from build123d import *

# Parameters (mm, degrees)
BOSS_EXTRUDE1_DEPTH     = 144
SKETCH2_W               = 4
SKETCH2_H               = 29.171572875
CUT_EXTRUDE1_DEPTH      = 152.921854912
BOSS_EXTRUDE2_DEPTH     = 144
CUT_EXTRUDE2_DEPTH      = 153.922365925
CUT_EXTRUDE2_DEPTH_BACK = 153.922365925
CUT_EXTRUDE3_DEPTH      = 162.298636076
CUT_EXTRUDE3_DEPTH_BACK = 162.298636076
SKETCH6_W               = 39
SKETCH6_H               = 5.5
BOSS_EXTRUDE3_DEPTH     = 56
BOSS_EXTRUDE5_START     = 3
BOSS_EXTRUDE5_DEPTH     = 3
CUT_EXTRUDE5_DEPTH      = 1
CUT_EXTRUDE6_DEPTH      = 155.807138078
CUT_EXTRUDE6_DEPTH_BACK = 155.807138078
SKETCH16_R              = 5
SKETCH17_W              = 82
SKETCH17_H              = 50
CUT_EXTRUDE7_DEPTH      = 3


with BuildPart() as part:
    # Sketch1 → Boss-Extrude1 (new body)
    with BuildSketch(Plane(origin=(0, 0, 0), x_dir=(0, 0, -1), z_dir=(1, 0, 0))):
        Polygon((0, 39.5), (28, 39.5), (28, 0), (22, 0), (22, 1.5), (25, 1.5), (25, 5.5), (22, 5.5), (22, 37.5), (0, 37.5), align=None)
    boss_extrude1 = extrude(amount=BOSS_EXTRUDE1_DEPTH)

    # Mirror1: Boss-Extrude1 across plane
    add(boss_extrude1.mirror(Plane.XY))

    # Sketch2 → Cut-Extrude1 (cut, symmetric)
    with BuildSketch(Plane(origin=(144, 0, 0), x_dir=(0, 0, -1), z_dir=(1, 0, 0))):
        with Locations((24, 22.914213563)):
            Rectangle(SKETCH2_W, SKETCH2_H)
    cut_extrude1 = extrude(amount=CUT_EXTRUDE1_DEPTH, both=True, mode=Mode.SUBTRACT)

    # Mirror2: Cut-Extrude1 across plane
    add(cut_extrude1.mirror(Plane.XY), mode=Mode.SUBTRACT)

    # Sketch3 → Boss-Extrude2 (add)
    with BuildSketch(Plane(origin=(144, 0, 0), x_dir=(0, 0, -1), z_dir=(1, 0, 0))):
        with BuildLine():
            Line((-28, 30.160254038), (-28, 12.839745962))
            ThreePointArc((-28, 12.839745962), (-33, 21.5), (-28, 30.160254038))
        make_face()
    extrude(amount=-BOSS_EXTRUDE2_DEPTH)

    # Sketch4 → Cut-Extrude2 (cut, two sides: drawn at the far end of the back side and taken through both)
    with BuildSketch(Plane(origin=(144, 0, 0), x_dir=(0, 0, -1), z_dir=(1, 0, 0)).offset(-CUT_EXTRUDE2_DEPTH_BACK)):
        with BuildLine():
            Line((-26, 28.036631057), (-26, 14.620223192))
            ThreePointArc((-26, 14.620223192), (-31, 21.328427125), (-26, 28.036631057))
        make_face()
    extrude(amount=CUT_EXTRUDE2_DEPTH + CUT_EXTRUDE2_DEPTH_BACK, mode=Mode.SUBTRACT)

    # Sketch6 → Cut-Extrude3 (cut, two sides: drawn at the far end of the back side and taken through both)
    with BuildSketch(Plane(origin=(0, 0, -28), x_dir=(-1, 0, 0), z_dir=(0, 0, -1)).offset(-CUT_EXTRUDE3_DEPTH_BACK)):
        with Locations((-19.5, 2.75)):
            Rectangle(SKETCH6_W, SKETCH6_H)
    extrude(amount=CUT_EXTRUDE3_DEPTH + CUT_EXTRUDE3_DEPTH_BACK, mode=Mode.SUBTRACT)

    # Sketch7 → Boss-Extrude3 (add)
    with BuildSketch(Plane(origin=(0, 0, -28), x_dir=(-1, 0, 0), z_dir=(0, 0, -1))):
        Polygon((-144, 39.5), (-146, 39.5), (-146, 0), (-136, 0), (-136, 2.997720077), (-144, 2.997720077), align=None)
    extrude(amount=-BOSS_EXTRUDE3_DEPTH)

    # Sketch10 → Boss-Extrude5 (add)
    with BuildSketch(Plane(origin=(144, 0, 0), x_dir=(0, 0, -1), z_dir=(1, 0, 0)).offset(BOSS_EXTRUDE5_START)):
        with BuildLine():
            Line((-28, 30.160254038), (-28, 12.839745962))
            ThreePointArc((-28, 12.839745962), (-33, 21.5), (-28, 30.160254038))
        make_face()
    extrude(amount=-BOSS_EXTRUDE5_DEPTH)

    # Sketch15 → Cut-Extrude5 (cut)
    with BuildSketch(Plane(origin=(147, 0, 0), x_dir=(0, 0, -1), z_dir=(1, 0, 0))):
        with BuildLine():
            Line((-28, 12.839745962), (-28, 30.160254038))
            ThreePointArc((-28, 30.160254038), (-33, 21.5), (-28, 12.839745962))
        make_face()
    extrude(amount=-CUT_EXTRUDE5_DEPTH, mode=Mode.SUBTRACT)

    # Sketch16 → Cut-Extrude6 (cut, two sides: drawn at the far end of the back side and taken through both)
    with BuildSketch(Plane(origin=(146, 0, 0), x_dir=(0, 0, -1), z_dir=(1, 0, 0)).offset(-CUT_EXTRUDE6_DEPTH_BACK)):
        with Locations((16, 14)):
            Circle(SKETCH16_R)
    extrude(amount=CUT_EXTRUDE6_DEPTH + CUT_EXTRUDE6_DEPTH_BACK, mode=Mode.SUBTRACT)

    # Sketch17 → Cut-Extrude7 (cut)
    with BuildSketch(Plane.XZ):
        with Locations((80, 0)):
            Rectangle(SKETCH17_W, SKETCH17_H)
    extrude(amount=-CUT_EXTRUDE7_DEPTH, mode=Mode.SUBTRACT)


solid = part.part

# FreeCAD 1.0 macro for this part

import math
import FreeCAD as App
import Part
import Sketcher
Q = App.Units.Quantity


def add_polygon(sketch, points):
    """Adds a closed chain of lines whose ends are joined by coincident constraints."""
    first, n = sketch.GeometryCount, len(points)
    for a, b in zip(points, points[1:] + points[:1]):
        sketch.addGeometry(Part.LineSegment(App.Vector(*a, 0), App.Vector(*b, 0)), False)
    for i in range(n):
        sketch.addConstraint(Sketcher.Constraint("Coincident", first + i, 2, first + (i + 1) % n, 1))

doc = App.newDocument("Part")
body = doc.addObject("PartDesign::Body", "Body")

# Sketch on YZ plane
sketch1 = doc.addObject("Sketcher::SketchObject", "Sketch")
body.addObject(sketch1)
sketch1.AttachmentSupport = (doc.YZ_Plane, [""])
sketch1.MapMode = "FlatFace"
add_polygon(sketch1, [(39.5, -28), (39.5, 0), (37.5, 0), (37.5, -22), (5.5, -22), (5.5, -25), (1.5, -25), (1.5, -22), (0, -22), (0, -28)])  # lines 0-9
sketch1.addConstraint(Sketcher.Constraint("Vertical", 0))
sketch1.addConstraint(Sketcher.Constraint("Horizontal", 1))
sketch1.addConstraint(Sketcher.Constraint("Vertical", 2))
sketch1.addConstraint(Sketcher.Constraint("Horizontal", 3))
sketch1.addConstraint(Sketcher.Constraint("Vertical", 4))
sketch1.addConstraint(Sketcher.Constraint("Horizontal", 5))
sketch1.addConstraint(Sketcher.Constraint("Vertical", 6))
sketch1.addConstraint(Sketcher.Constraint("Horizontal", 7))
sketch1.addConstraint(Sketcher.Constraint("Vertical", 8))
sketch1.addConstraint(Sketcher.Constraint("Horizontal", 9))
sketch1.addConstraint(Sketcher.Constraint("PointOnObject", 0, 2, -1))
sketch1.addConstraint(Sketcher.Constraint("PointOnObject", 7, 2, -2))
sketch1.addConstraint(Sketcher.Constraint("Horizontal", 3, 2, 6, 2))
sketch1.addConstraint(Sketcher.Constraint("DistanceX", 1, 2, 1, 1, Q("2 mm")))
sketch1.addConstraint(Sketcher.Constraint("DistanceX", 3, 2, 3, 1, Q("32 mm")))
sketch1.addConstraint(Sketcher.Constraint("DistanceX", 5, 2, 5, 1, Q("4 mm")))
sketch1.addConstraint(Sketcher.Constraint("DistanceY", 0, 1, 0, 2, Q("28 mm")))
sketch1.addConstraint(Sketcher.Constraint("DistanceY", 2, 2, 2, 1, Q("22 mm")))
sketch1.addConstraint(Sketcher.Constraint("DistanceY", 4, 2, 4, 1, Q("3 mm")))
sketch1.addConstraint(Sketcher.Constraint("DistanceX", 7, 2, 7, 1, Q("1.5 mm")))
pad1 = doc.addObject("PartDesign::Pad", "Pad")
body.addObject(pad1)
pad1.Profile = sketch1
pad1.Length = 144
doc.recompute()

mirrored = doc.addObject("PartDesign::Mirrored", "Mirrored")
body.addObject(mirrored)
mirrored.Originals = [pad1]
mirrored.MirrorPlane = (doc.XY_Plane, [""])
body.Tip = mirrored

# Sketch on YZ plane
sketch2 = doc.addObject("Sketcher::SketchObject", "Sketch001")
body.addObject(sketch2)
sketch2.AttachmentSupport = (doc.YZ_Plane, [""])
sketch2.MapMode = "FlatFace"
sketch2.AttachmentOffset = App.Placement(App.Vector(0, 0, 144), App.Rotation())
add_polygon(sketch2, [(37.5, -22), (8.3, -22), (8.3, -26), (37.5, -26)])  # lines 0-3
sketch2.addConstraint(Sketcher.Constraint("Horizontal", 0))
sketch2.addConstraint(Sketcher.Constraint("Vertical", 1))
sketch2.addConstraint(Sketcher.Constraint("Horizontal", 2))
sketch2.addConstraint(Sketcher.Constraint("Vertical", 3))
sketch2.addConstraint(Sketcher.Constraint("DistanceY", 1, 2, 1, 1, Q("4 mm")))
sketch2.addConstraint(Sketcher.Constraint("DistanceY", 0, 2, -1, 1, Q("22 mm")))
sketch2.addConstraint(Sketcher.Constraint("DistanceX", -1, 1, 2, 2, Q("37.5 mm")))
sketch2.addConstraint(Sketcher.Constraint("DistanceX", 0, 2, 0, 1, Q("29.171573 mm")))
pocket1 = doc.addObject("PartDesign::Pocket", "Pocket")
body.addObject(pocket1)
pocket1.Profile = sketch2
pocket1.Length = 305.84371
pocket1.Midplane = True
doc.recompute()

mirrored2 = doc.addObject("PartDesign::Mirrored", "Mirrored001")
body.addObject(mirrored2)
mirrored2.Originals = [pocket1]
mirrored2.MirrorPlane = (doc.XY_Plane, [""])
body.Tip = mirrored2

# Sketch on YZ plane
sketch3 = doc.addObject("Sketcher::SketchObject", "Sketch002")
body.addObject(sketch3)
sketch3.AttachmentSupport = (doc.YZ_Plane, [""])
sketch3.MapMode = "FlatFace"
sketch3.AttachmentOffset = App.Placement(App.Vector(0, 0, 144), App.Rotation())
sketch3.addGeometry(Part.LineSegment(App.Vector(13, 28, 0), App.Vector(30, 28, 0)), False)
sketch3.addGeometry(Part.ArcOfCircle(Part.Circle(App.Vector(22, 23, 0), App.Vector(0, 0, 1), 10), math.radians(30), math.radians(150)), False)
sketch3.addConstraint(Sketcher.Constraint("Coincident", 0, 1, 1, 2))
sketch3.addConstraint(Sketcher.Constraint("Coincident", 1, 1, 0, 2))
sketch3.addConstraint(Sketcher.Constraint("Horizontal", 0))
sketch3.addConstraint(Sketcher.Constraint("Radius", 1, Q("10 mm")))
sketch3.addConstraint(Sketcher.Constraint("DistanceY", -1, 1, 1, 3, Q("23 mm")))
sketch3.addConstraint(Sketcher.Constraint("DistanceY", -1, 1, 0, 1, Q("28 mm")))
sketch3.addConstraint(Sketcher.Constraint("DistanceX", -1, 1, 1, 3, Q("21.5 mm")))
pad2 = doc.addObject("PartDesign::Pad", "Pad001")
body.addObject(pad2)
pad2.Profile = sketch3
pad2.Length = 144
pad2.Reversed = True

# Sketch on YZ plane
sketch4 = doc.addObject("Sketcher::SketchObject", "Sketch003")
body.addObject(sketch4)
sketch4.AttachmentSupport = (doc.YZ_Plane, [""])
sketch4.MapMode = "FlatFace"
sketch4.AttachmentOffset = App.Placement(App.Vector(0, 0, 144), App.Rotation())
sketch4.addGeometry(Part.LineSegment(App.Vector(15, 26, 0), App.Vector(28, 26, 0)), False)
sketch4.addGeometry(Part.ArcOfCircle(Part.Circle(App.Vector(21, 24, 0), App.Vector(0, 0, 1), 7), math.radians(17), math.radians(163)), False)
sketch4.addConstraint(Sketcher.Constraint("Coincident", 0, 1, 1, 2))
sketch4.addConstraint(Sketcher.Constraint("Coincident", 1, 1, 0, 2))
sketch4.addConstraint(Sketcher.Constraint("Horizontal", 0))
sketch4.addConstraint(Sketcher.Constraint("Radius", 1, Q("7 mm")))
sketch4.addConstraint(Sketcher.Constraint("DistanceY", -1, 1, 1, 3, Q("24 mm")))
sketch4.addConstraint(Sketcher.Constraint("DistanceY", -1, 1, 0, 1, Q("26 mm")))
sketch4.addConstraint(Sketcher.Constraint("DistanceX", -1, 1, 1, 1, Q("28.036631 mm")))
pocket2 = doc.addObject("PartDesign::Pocket", "Pocket001")
body.addObject(pocket2)
pocket2.Profile = sketch4
pocket2.Type = "ThroughAll"
pocket2.Midplane = True

# Sketch on XY plane
sketch5 = doc.addObject("Sketcher::SketchObject", "Sketch004")
body.addObject(sketch5)
sketch5.AttachmentSupport = (doc.XY_Plane, [""])
sketch5.MapMode = "FlatFace"
sketch5.AttachmentOffset = App.Placement(App.Vector(0, 0, -28), App.Rotation())
add_polygon(sketch5, [(39, 6), (39, 0), (0, 0), (0, 6)])  # lines 0-3
sketch5.addConstraint(Sketcher.Constraint("Vertical", 0))
sketch5.addConstraint(Sketcher.Constraint("Horizontal", 1))
sketch5.addConstraint(Sketcher.Constraint("Vertical", 2))
sketch5.addConstraint(Sketcher.Constraint("Horizontal", 3))
sketch5.addConstraint(Sketcher.Constraint("Coincident", 1, 2, -1, 1))
sketch5.addConstraint(Sketcher.Constraint("DistanceX", 1, 2, 1, 1, Q("39 mm")))
sketch5.addConstraint(Sketcher.Constraint("DistanceY", 0, 2, 0, 1, Q("5.5 mm")))
pocket3 = doc.addObject("PartDesign::Pocket", "Pocket002")
body.addObject(pocket3)
pocket3.Profile = sketch5
pocket3.Type = "ThroughAll"
pocket3.Midplane = True

# Sketch on XY plane
sketch6 = doc.addObject("Sketcher::SketchObject", "Sketch005")
body.addObject(sketch6)
sketch6.AttachmentSupport = (doc.XY_Plane, [""])
sketch6.MapMode = "FlatFace"
sketch6.AttachmentOffset = App.Placement(App.Vector(0, 0, -28), App.Rotation())
add_polygon(sketch6, [(144, 39.5), (146, 39.5), (146, 0), (136, 0), (136, 3), (144, 3)])  # lines 0-5
sketch6.addConstraint(Sketcher.Constraint("Horizontal", 0))
sketch6.addConstraint(Sketcher.Constraint("Vertical", 1))
sketch6.addConstraint(Sketcher.Constraint("Horizontal", 2))
sketch6.addConstraint(Sketcher.Constraint("Vertical", 3))
sketch6.addConstraint(Sketcher.Constraint("Horizontal", 4))
sketch6.addConstraint(Sketcher.Constraint("Vertical", 5))
sketch6.addConstraint(Sketcher.Constraint("PointOnObject", 1, 2, -1))
sketch6.addConstraint(Sketcher.Constraint("DistanceX", 0, 1, 0, 2, Q("2 mm")))
sketch6.addConstraint(Sketcher.Constraint("DistanceX", 2, 2, 2, 1, Q("10 mm")))
sketch6.addConstraint(Sketcher.Constraint("DistanceY", 1, 2, 1, 1, Q("39.5 mm")))
sketch6.addConstraint(Sketcher.Constraint("DistanceX", -1, 1, 0, 2, Q("146 mm")))
sketch6.addConstraint(Sketcher.Constraint("DistanceY", 3, 1, 3, 2, Q("2.99772 mm")))
pad3 = doc.addObject("PartDesign::Pad", "Pad002")
body.addObject(pad3)
pad3.Profile = sketch6
pad3.Length = 56

# Sketch on YZ plane
sketch7 = doc.addObject("Sketcher::SketchObject", "Sketch006")
body.addObject(sketch7)
sketch7.AttachmentSupport = (doc.YZ_Plane, [""])
sketch7.MapMode = "FlatFace"
sketch7.AttachmentOffset = App.Placement(App.Vector(0, 0, 147), App.Rotation())
sketch7.addGeometry(Part.LineSegment(App.Vector(13, 28, 0), App.Vector(30, 28, 0)), False)
sketch7.addGeometry(Part.ArcOfCircle(Part.Circle(App.Vector(22, 23, 0), App.Vector(0, 0, 1), 10), math.radians(30), math.radians(150)), False)
sketch7.addConstraint(Sketcher.Constraint("Coincident", 0, 1, 1, 2))
sketch7.addConstraint(Sketcher.Constraint("Coincident", 1, 1, 0, 2))
sketch7.addConstraint(Sketcher.Constraint("Horizontal", 0))
sketch7.addConstraint(Sketcher.Constraint("Radius", 1, Q("10 mm")))
sketch7.addConstraint(Sketcher.Constraint("DistanceY", -1, 1, 1, 3, Q("23 mm")))
sketch7.addConstraint(Sketcher.Constraint("DistanceY", -1, 1, 0, 1, Q("28 mm")))
sketch7.addConstraint(Sketcher.Constraint("DistanceX", -1, 1, 1, 3, Q("21.5 mm")))
pad4 = doc.addObject("PartDesign::Pad", "Pad003")
body.addObject(pad4)
pad4.Profile = sketch7
pad4.Length = 3
pad4.Reversed = True

# Sketch on YZ plane
sketch8 = doc.addObject("Sketcher::SketchObject", "Sketch007")
body.addObject(sketch8)
sketch8.AttachmentSupport = (doc.YZ_Plane, [""])
sketch8.MapMode = "FlatFace"
sketch8.AttachmentOffset = App.Placement(App.Vector(0, 0, 147), App.Rotation())
sketch8.addGeometry(Part.LineSegment(App.Vector(13, 28, 0), App.Vector(30, 28, 0)), False)
sketch8.addGeometry(Part.ArcOfCircle(Part.Circle(App.Vector(22, 23, 0), App.Vector(0, 0, 1), 10), math.radians(30), math.radians(150)), False)
sketch8.addConstraint(Sketcher.Constraint("Coincident", 0, 1, 1, 2))
sketch8.addConstraint(Sketcher.Constraint("Coincident", 1, 1, 0, 2))
sketch8.addConstraint(Sketcher.Constraint("Horizontal", 0))
sketch8.addConstraint(Sketcher.Constraint("Radius", 1, Q("10 mm")))
sketch8.addConstraint(Sketcher.Constraint("DistanceY", -1, 1, 1, 3, Q("23 mm")))
sketch8.addConstraint(Sketcher.Constraint("DistanceY", -1, 1, 0, 1, Q("28 mm")))
sketch8.addConstraint(Sketcher.Constraint("DistanceX", -1, 1, 1, 3, Q("21.5 mm")))
pocket4 = doc.addObject("PartDesign::Pocket", "Pocket003")
body.addObject(pocket4)
pocket4.Profile = sketch8
pocket4.Length = 1

# Sketch on YZ plane
sketch9 = doc.addObject("Sketcher::SketchObject", "Sketch008")
body.addObject(sketch9)
sketch9.AttachmentSupport = (doc.YZ_Plane, [""])
sketch9.MapMode = "FlatFace"
sketch9.AttachmentOffset = App.Placement(App.Vector(0, 0, 146), App.Rotation())
sketch9.addGeometry(Part.Circle(App.Vector(14, -16, 0), App.Vector(0, 0, 1), 5), False)
sketch9.addConstraint(Sketcher.Constraint("Diameter", 0, Q("10 mm")))
sketch9.addConstraint(Sketcher.Constraint("DistanceX", -1, 1, 0, 3, Q("14 mm")))
sketch9.addConstraint(Sketcher.Constraint("DistanceY", 0, 3, -1, 1, Q("16 mm")))
pocket5 = doc.addObject("PartDesign::Pocket", "Pocket004")
body.addObject(pocket5)
pocket5.Profile = sketch9
pocket5.Type = "ThroughAll"
pocket5.Midplane = True

# Sketch on XZ plane
sketch10 = doc.addObject("Sketcher::SketchObject", "Sketch009")
body.addObject(sketch10)
sketch10.AttachmentSupport = (doc.XZ_Plane, [""])
sketch10.MapMode = "FlatFace"
add_polygon(sketch10, [(39, 25), (39, -25), (121, -25), (121, 25)])  # lines 0-3
sketch10.addConstraint(Sketcher.Constraint("Vertical", 0))
sketch10.addConstraint(Sketcher.Constraint("Horizontal", 1))
sketch10.addConstraint(Sketcher.Constraint("Vertical", 2))
sketch10.addConstraint(Sketcher.Constraint("Horizontal", 3))
sketch10.addConstraint(Sketcher.Constraint("DistanceX", 1, 1, 1, 2, Q("82 mm")))
sketch10.addConstraint(Sketcher.Constraint("DistanceY", 0, 2, 0, 1, Q("50 mm")))
sketch10.addConstraint(Sketcher.Constraint("DistanceX", -1, 1, 0, 2, Q("39 mm")))
sketch10.addConstraint(Sketcher.Constraint("DistanceY", 0, 2, -1, 1, Q("25 mm")))
pocket6 = doc.addObject("PartDesign::Pocket", "Pocket005")
body.addObject(pocket6)
pocket6.Profile = sketch10
pocket6.Length = 3

doc.recompute()
